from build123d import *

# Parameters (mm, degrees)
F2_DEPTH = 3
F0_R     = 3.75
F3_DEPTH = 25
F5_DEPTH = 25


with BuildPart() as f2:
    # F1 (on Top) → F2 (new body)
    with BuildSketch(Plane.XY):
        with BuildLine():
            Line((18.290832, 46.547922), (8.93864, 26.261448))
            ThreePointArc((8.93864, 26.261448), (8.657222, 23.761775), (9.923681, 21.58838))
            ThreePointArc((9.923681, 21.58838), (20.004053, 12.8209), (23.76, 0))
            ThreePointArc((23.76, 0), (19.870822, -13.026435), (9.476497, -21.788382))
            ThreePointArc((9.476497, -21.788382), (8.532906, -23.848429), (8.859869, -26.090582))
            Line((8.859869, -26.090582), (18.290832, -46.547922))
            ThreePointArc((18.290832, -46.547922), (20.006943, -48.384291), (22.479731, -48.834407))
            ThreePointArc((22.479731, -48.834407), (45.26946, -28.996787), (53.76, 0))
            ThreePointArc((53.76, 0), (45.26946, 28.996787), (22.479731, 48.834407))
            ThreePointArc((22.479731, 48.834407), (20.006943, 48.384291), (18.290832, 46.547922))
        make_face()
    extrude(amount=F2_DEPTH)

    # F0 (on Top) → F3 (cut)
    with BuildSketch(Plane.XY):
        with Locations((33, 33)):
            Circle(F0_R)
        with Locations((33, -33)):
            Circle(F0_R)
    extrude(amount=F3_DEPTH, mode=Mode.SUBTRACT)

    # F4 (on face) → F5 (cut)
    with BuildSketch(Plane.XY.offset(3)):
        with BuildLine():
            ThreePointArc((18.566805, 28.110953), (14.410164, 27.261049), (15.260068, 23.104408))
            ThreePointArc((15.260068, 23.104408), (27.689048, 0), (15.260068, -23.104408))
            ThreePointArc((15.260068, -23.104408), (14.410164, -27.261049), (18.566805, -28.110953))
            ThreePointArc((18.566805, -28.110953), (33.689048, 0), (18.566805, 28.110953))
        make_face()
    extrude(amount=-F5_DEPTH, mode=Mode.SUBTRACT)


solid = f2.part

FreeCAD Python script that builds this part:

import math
import FreeCAD as App
import Part
import Sketcher
from FreeCAD import Vector
Q = App.Units.Quantity

doc = App.newDocument("Part")
body = doc.addObject("PartDesign::Body", "Body")

# Sketch on XY plane
sketch1 = body.newObject("Sketcher::SketchObject", "Sketch")
sketch1.AttachmentSupport = (doc.getObject("XY_Plane"), [""])
sketch1.MapMode = "FlatFace"
sketch1.addGeometry([
    Part.LineSegment(Vector(18.290832, 46.547922, 0), Vector(8.93864, 26.261448, 0)),  # 0
    Part.ArcOfCircle(Part.Circle(Vector(12.57121, 24.586808, 0), Vector(0, 0, 1), 3.999998), math.radians(155.249978), math.radians(228.556388)),  # 1
    Part.ArcOfCircle(Part.Circle(Vector(0.000002, 0.000001, 0), Vector(0, 0, 1), 23.759998), math.radians(-0.000002), math.radians(65.312851)),  # 2
    Part.ArcOfCircle(Part.Circle(Vector(-0.000002, 0.000001, 0), Vector(0, 0, 1), 23.760002), math.radians(-66.494162), math.radians(-0.000003)),  # 3
    Part.ArcOfCircle(Part.Circle(Vector(12.492445, -24.415944, 0), Vector(0, 0, 1), 4.000003), math.radians(138.936891), math.radians(204.749971)),  # 4
    Part.LineSegment(Vector(8.859869, -26.090582, 0), Vector(18.290832, -46.547922, 0)),  # 5
    Part.ArcOfCircle(Part.Circle(Vector(21.923404, -44.873284, 0), Vector(0, 0, 1), 3.999999), math.radians(-155.250009), math.radians(-82.005291)),  # 6
    Part.ArcOfCircle(Part.Circle(Vector(0.000003, -0.000002, 0), Vector(0, 0, 1), 53.759997), math.radians(-65.282173), math.radians(0.000002)),  # 7
    Part.ArcOfCircle(Part.Circle(Vector(0.000003, 0.000002, 0), Vector(0, 0, 1), 53.759997), math.radians(-0.000002), math.radians(65.282173)),  # 8
    Part.ArcOfCircle(Part.Circle(Vector(21.923404, 44.873284, 0), Vector(0, 0, 1), 3.999999), math.radians(82.005291), math.radians(155.250009)),  # 9
], False)
sketch1.addConstraint([
    Sketcher.Constraint("Tangent", 0, 2, 1, 1),
    Sketcher.Constraint("Coincident", 1, 2, 2, 2),
    Sketcher.Constraint("Tangent", 2, 1, 3, 2),
    Sketcher.Constraint("Coincident", 3, 1, 4, 1),
    Sketcher.Constraint("Tangent", 4, 2, 5, 1),
    Sketcher.Constraint("Tangent", 5, 2, 6, 1),
    Sketcher.Constraint("Coincident", 6, 2, 7, 1),
    Sketcher.Constraint("Tangent", 7, 2, 8, 1),
    Sketcher.Constraint("Coincident", 8, 2, 9, 1),
    Sketcher.Constraint("Tangent", 9, 2, 0, 1),
    Sketcher.Constraint("Coincident", 2, 3, -1, 1),
    Sketcher.Constraint("Coincident", 7, 3, -1, 1),
    Sketcher.Constraint("Equal", 1, 6),
    Sketcher.Constraint("Equal", 7, 8),
    Sketcher.Constraint("Equal", 6, 9),
    Sketcher.Constraint("Symmetric", 6, 3, 9, 3, -1),
    Sketcher.Constraint("PointOnObject", 2, 1, -1),
    Sketcher.Constraint("PointOnObject", 7, 2, -1),
    Sketcher.Constraint("Vertical", 5, 2, 9, 2),
    Sketcher.Constraint("Radius", 1, 3.999998),
    Sketcher.Constraint("Radius", 2, 23.759998),
    Sketcher.Constraint("Radius", 3, 23.760002),
    Sketcher.Constraint("DistanceX", 2, 1, 7, 2, 30.0),
    Sketcher.Constraint("Angle", 0, Q("-114.749999 deg")),
    Sketcher.Constraint("Radius", 4, 4.000003),
    Sketcher.Constraint("DistanceX", 7, 3, 6, 3, 21.923402),
    Sketcher.Constraint("DistanceX", 3, 3, 3, 1, 9.476499),
    Sketcher.Constraint("DistanceY", 4, 2, 3, 1, 4.3022),
    Sketcher.Constraint("DistanceY", 1, 3, 8, 2, 24.247599),
])
pad1 = body.newObject("PartDesign::Pad", "Pad")
pad1.Profile = sketch1
pad1.Length = 3

# Sketch on XY plane
sketch2 = body.newObject("Sketcher::SketchObject", "Sketch001")
sketch2.AttachmentSupport = (doc.getObject("XY_Plane"), [""])
sketch2.MapMode = "FlatFace"
sketch2.addGeometry([
    Part.Circle(Vector(33, 33, 0), Vector(0, 0, 1), 3.75),
    Part.Circle(Vector(33, -33, 0), Vector(0, 0, 1), 3.75),
], False)
sketch2.addConstraint([
    Sketcher.Constraint("Equal", 0, 1),
    Sketcher.Constraint("Symmetric", 0, 3, 1, 3, -1),
    Sketcher.Constraint("Diameter", 0, 7.5),
    Sketcher.Constraint("DistanceX", -1, 1, 0, 3, 33.0),
    Sketcher.Constraint("DistanceY", -1, 1, 0, 3, 33.0),
])
pocket1 = body.newObject("PartDesign::Pocket", "Pocket")
pocket1.Profile = sketch2
pocket1.Length = 25
pocket1.Reversed = True

# Sketch on XY plane
sketch3 = body.newObject("Sketcher::SketchObject", "Sketch002")
sketch3.AttachmentSupport = (doc.getObject("XY_Plane"), [""])
sketch3.MapMode = "FlatFace"
sketch3.AttachmentOffset = App.Placement(Vector(0, 0, 3), App.Rotation())
sketch3.addGeometry([
    Part.ArcOfCircle(Part.Circle(Vector(16.913436, 25.607681, 0), Vector(0, 0, 1), 3), math.radians(56.555923), math.radians(236.555923)),
    Part.ArcOfCircle(Part.Circle(Vector(0.000001, 0, 0), Vector(0, 0, 1), 27.689047), math.radians(-56.55592), math.radians(56.55592)),
    Part.ArcOfCircle(Part.Circle(Vector(16.913436, -25.607681, 0), Vector(0, 0, 1), 3), math.radians(123.444077), math.radians(303.444077)),
    Part.ArcOfCircle(Part.Circle(Vector(0.000001, 0, 0), Vector(0, 0, 1), 33.689047), math.radians(-56.55592), math.radians(56.55592)),
], False)
sketch3.addConstraint([
    Sketcher.Constraint("Tangent", 0, 2, 1, 2),
    Sketcher.Constraint("Tangent", 1, 1, 2, 1),
    Sketcher.Constraint("Tangent", 2, 2, 3, 1),
    Sketcher.Constraint("Tangent", 3, 2, 0, 1),
    Sketcher.Constraint("Coincident", 1, 3, -1, 1),
    Sketcher.Constraint("Coincident", 3, 3, -1, 1),
    Sketcher.Constraint("Vertical", 0, 3, 2, 3),
    Sketcher.Constraint("Radius", 0, 3.0),
    Sketcher.Constraint("Radius", 1, 27.689047),
    Sketcher.Constraint("DistanceY", -1, 1, 0, 3, 25.607681),
])
pocket2 = body.newObject("PartDesign::Pocket", "Pocket001")
pocket2.Profile = sketch3
pocket2.Length = 25

doc.recompute()
